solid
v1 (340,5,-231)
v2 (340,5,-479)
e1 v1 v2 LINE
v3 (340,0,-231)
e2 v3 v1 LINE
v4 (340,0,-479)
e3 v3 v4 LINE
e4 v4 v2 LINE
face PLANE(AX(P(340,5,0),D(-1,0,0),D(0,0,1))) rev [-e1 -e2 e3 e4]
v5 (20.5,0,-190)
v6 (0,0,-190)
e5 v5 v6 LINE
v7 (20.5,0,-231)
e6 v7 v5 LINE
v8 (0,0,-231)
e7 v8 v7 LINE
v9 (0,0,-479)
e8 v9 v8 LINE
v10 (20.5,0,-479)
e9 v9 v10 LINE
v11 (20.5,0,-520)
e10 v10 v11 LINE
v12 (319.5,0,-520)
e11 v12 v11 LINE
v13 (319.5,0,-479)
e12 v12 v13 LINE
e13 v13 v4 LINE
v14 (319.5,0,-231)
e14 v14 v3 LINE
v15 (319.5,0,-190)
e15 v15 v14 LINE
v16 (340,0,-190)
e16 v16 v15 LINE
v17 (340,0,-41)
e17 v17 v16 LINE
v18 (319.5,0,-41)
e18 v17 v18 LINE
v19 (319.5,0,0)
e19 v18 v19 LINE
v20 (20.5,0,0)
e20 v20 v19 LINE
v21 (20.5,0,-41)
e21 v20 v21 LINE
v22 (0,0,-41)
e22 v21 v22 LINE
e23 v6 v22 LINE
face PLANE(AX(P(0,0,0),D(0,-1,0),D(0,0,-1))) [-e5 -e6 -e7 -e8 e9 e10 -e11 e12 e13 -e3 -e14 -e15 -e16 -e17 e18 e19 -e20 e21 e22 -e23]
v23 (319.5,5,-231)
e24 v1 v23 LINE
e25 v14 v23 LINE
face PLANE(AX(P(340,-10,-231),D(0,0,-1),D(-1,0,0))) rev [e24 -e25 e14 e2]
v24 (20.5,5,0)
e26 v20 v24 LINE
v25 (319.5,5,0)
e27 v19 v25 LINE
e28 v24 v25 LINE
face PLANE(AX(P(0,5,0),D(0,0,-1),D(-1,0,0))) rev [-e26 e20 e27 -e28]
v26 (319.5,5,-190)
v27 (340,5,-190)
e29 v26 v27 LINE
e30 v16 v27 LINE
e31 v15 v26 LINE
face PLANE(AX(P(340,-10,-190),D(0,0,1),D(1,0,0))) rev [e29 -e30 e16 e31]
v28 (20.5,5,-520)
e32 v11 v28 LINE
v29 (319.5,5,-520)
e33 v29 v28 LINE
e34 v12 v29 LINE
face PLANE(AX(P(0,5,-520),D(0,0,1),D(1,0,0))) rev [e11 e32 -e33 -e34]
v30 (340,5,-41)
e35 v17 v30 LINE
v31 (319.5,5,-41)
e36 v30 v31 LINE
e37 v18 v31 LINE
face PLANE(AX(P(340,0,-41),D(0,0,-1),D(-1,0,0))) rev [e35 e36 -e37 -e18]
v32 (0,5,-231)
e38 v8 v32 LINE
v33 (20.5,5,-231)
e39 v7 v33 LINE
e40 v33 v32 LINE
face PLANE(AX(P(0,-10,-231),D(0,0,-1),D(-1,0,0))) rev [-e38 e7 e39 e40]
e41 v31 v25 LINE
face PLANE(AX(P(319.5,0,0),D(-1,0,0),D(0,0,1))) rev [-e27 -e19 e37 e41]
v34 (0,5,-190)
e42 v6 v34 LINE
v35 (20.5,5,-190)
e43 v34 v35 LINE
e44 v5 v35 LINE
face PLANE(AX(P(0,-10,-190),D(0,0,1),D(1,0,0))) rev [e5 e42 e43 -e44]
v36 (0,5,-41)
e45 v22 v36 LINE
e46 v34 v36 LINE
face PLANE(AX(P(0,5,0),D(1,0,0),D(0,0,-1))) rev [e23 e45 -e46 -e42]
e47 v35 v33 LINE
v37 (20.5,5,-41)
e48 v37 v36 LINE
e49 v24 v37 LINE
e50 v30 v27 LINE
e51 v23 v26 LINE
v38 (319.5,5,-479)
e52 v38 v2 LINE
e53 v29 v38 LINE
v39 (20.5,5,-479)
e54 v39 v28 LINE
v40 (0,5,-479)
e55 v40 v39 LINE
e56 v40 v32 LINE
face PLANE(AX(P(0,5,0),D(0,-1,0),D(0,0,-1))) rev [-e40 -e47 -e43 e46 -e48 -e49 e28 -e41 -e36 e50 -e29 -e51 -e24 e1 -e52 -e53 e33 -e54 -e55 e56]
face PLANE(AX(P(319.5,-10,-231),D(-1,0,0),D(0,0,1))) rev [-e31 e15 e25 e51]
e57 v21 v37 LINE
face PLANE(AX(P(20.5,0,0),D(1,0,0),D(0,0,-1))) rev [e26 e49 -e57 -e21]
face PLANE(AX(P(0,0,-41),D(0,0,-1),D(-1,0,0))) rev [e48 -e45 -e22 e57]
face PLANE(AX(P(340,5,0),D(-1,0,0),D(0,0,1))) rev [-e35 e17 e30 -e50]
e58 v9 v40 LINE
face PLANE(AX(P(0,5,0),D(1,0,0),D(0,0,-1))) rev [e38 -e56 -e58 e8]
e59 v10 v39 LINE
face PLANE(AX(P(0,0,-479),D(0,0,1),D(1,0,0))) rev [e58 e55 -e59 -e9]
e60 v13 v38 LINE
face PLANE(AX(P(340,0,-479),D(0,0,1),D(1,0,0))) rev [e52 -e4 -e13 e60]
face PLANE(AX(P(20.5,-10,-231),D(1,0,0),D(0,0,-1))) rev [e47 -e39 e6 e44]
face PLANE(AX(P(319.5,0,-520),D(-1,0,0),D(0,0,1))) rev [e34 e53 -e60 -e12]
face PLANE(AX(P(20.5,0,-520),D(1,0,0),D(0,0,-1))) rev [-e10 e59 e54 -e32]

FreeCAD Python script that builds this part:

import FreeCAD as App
import Part
import Sketcher

V = App.Vector

doc = App.newDocument("Part")
body = doc.addObject("PartDesign::Body", "Body")

# Sketch on XZ plane
sketch1 = doc.addObject("Sketcher::SketchObject", "Sketch")
body.addObject(sketch1)
sketch1.AttachmentSupport = (doc.XZ_Plane, [""])
sketch1.MapMode = "FlatFace"
sketch1.addGeometry([
    Part.LineSegment(V(0, -520, 0), V(0, 0, 0)),
    Part.LineSegment(V(0, 0, 0), V(340, 0, 0)),
    Part.LineSegment(V(340, 0, 0), V(340, -520, 0)),
    Part.LineSegment(V(340, -520, 0), V(0, -520, 0)),
], False)
sketch1.addConstraint([
    Sketcher.Constraint("Coincident", 0, 2, 1, 1),
    Sketcher.Constraint("Coincident", 1, 2, 2, 1),
    Sketcher.Constraint("Coincident", 2, 2, 3, 1),
    Sketcher.Constraint("Coincident", 3, 2, 0, 1),
    Sketcher.Constraint("Vertical", 0),
    Sketcher.Constraint("Horizontal", 1),
    Sketcher.Constraint("Vertical", 2),
    Sketcher.Constraint("Horizontal", 3),
    Sketcher.Constraint("Coincident", 0, 2, -1, 1),
    Sketcher.Constraint("DistanceX", 1, 1, 1, 2, 340.0),
    Sketcher.Constraint("DistanceY", 0, 1, 0, 2, 520.0),
])
pad1 = doc.addObject("PartDesign::Pad", "Pad")
body.addObject(pad1)
pad1.Profile = sketch1
pad1.Length = 5
pad1.Reversed = True

# Sketch on XZ plane
sketch2 = doc.addObject("Sketcher::SketchObject", "Sketch001")
body.addObject(sketch2)
sketch2.AttachmentSupport = (doc.XZ_Plane, [""])
sketch2.MapMode = "FlatFace"
sketch2.AttachmentOffset = App.Placement(V(0, 0, -5), App.Rotation())
sketch2.addGeometry([
    Part.LineSegment(V(319.5, -520, 0), V(319.5, -479, 0)),  # 0
    Part.LineSegment(V(319.5, -479, 0), V(340, -479, 0)),  # 1
    Part.LineSegment(V(340, -479, 0), V(340, -520, 0)),  # 2
    Part.LineSegment(V(340, -520, 0), V(319.5, -520, 0)),  # 3
    Part.LineSegment(V(319.5, -41, 0), V(319.5, 0, 0)),  # 4
    Part.LineSegment(V(319.5, 0, 0), V(340, 0, 0)),  # 5
    Part.LineSegment(V(340, 0, 0), V(340, -41, 0)),  # 6
    Part.LineSegment(V(340, -41, 0), V(319.5, -41, 0)),  # 7
    Part.LineSegment(V(0, -41, 0), V(0, 0, 0)),  # 8
    Part.LineSegment(V(0, 0, 0), V(20.5, 0, 0)),  # 9
    Part.LineSegment(V(20.5, 0, 0), V(20.5, -41, 0)),  # 10
    Part.LineSegment(V(20.5, -41, 0), V(0, -41, 0)),  # 11
    Part.LineSegment(V(0, -520, 0), V(0, -479, 0)),  # 12
    Part.LineSegment(V(0, -479, 0), V(20.5, -479, 0)),  # 13
    Part.LineSegment(V(20.5, -479, 0), V(20.5, -520, 0)),  # 14
    Part.LineSegment(V(20.5, -520, 0), V(0, -520, 0)),  # 15
], False)
sketch2.addConstraint([
    Sketcher.Constraint("Coincident", 0, 2, 1, 1),
    Sketcher.Constraint("Coincident", 1, 2, 2, 1),
    Sketcher.Constraint("Coincident", 2, 2, 3, 1),
    Sketcher.Constraint("Coincident", 3, 2, 0, 1),
    Sketcher.Constraint("Coincident", 4, 2, 5, 1),
    Sketcher.Constraint("Coincident", 5, 2, 6, 1),
    Sketcher.Constraint("Coincident", 6, 2, 7, 1),
    Sketcher.Constraint("Coincident", 7, 2, 4, 1),
    Sketcher.Constraint("Coincident", 8, 2, 9, 1),
    Sketcher.Constraint("Coincident", 9, 2, 10, 1),
    Sketcher.Constraint("Coincident", 10, 2, 11, 1),
    Sketcher.Constraint("Coincident", 11, 2, 8, 1),
    Sketcher.Constraint("Coincident", 12, 2, 13, 1),
    Sketcher.Constraint("Coincident", 13, 2, 14, 1),
    Sketcher.Constraint("Coincident", 14, 2, 15, 1),
    Sketcher.Constraint("Coincident", 15, 2, 12, 1),
    Sketcher.Constraint("Vertical", 0),
    Sketcher.Constraint("Horizontal", 1),
    Sketcher.Constraint("Vertical", 2),
    Sketcher.Constraint("Horizontal", 3),
    Sketcher.Constraint("Vertical", 4),
    Sketcher.Constraint("Horizontal", 5),
    Sketcher.Constraint("Vertical", 6),
    Sketcher.Constraint("Horizontal", 7),
    Sketcher.Constraint("Vertical", 8),
    Sketcher.Constraint("Horizontal", 9),
    Sketcher.Constraint("Vertical", 10),
    Sketcher.Constraint("Horizontal", 11),
    Sketcher.Constraint("Vertical", 12),
    Sketcher.Constraint("Horizontal", 13),
    Sketcher.Constraint("Vertical", 14),
    Sketcher.Constraint("Horizontal", 15),
    Sketcher.Constraint("Coincident", 8, 2, -1, 1),
    Sketcher.Constraint("PointOnObject", 4, 2, -1),
    Sketcher.Constraint("PointOnObject", 12, 2, -2),
    Sketcher.Constraint("Horizontal", 7, 2, 10, 2),
    Sketcher.Constraint("Horizontal", 1, 2, 12, 2),
    Sketcher.Constraint("Horizontal", 3, 2, 14, 2),
    Sketcher.Constraint("Vertical", 3, 2, 4, 2),
    Sketcher.Constraint("Vertical", 2, 2, 5, 2),
    Sketcher.Constraint("Vertical", 10, 2, 13, 2),
    Sketcher.Constraint("Equal", 7, 9),
    Sketcher.Constraint("Equal", 2, 4),
    Sketcher.Constraint("DistanceY", 0, 1, 0, 2, 41.0),
    Sketcher.Constraint("DistanceX", 1, 1, 1, 2, 20.5),
    Sketcher.Constraint("DistanceY", 0, 2, -1, 1, 479.0),
    Sketcher.Constraint("DistanceX", -1, 1, 1, 2, 340.0),
])
pocket1 = doc.addObject("PartDesign::Pocket", "Pocket")
body.addObject(pocket1)
pocket1.Profile = sketch2
pocket1.Type = "ThroughAll"
pocket1.Reversed = True

# Sketch on XZ plane
sketch3 = doc.addObject("Sketcher::SketchObject", "Sketch002")
body.addObject(sketch3)
sketch3.AttachmentSupport = (doc.XZ_Plane, [""])
sketch3.MapMode = "FlatFace"
sketch3.AttachmentOffset = App.Placement(V(0, 0, -5), App.Rotation())
sketch3.addGeometry([
    Part.LineSegment(V(319.5, -231, 0), V(319.5, -190, 0)),  # 0
    Part.LineSegment(V(319.5, -190, 0), V(340, -190, 0)),  # 1
    Part.LineSegment(V(340, -190, 0), V(340, -231, 0)),  # 2
    Part.LineSegment(V(340, -231, 0), V(319.5, -231, 0)),  # 3
    Part.LineSegment(V(0, -231, 0), V(0, -190, 0)),  # 4
    Part.LineSegment(V(0, -190, 0), V(20.5, -190, 0)),  # 5
    Part.LineSegment(V(20.5, -190, 0), V(20.5, -231, 0)),  # 6
    Part.LineSegment(V(20.5, -231, 0), V(0, -231, 0)),  # 7
], False)
sketch3.addConstraint([
    Sketcher.Constraint("Coincident", 0, 2, 1, 1),
    Sketcher.Constraint("Coincident", 1, 2, 2, 1),
    Sketcher.Constraint("Coincident", 2, 2, 3, 1),
    Sketcher.Constraint("Coincident", 3, 2, 0, 1),
    Sketcher.Constraint("Coincident", 4, 2, 5, 1),
    Sketcher.Constraint("Coincident", 5, 2, 6, 1),
    Sketcher.Constraint("Coincident", 6, 2, 7, 1),
    Sketcher.Constraint("Coincident", 7, 2, 4, 1),
    Sketcher.Constraint("Vertical", 0),
    Sketcher.Constraint("Horizontal", 1),
    Sketcher.Constraint("Vertical", 2),
    Sketcher.Constraint("Horizontal", 3),
    Sketcher.Constraint("Vertical", 4),
    Sketcher.Constraint("Horizontal", 5),
    Sketcher.Constraint("Vertical", 6),
    Sketcher.Constraint("Horizontal", 7),
    Sketcher.Constraint("PointOnObject", 4, 2, -2),
    Sketcher.Constraint("Horizontal", 1, 2, 4, 2),
    Sketcher.Constraint("Horizontal", 3, 2, 6, 2),
    Sketcher.Constraint("Equal", 3, 5),
    Sketcher.Constraint("DistanceY", 0, 1, 0, 2, 41.0),
    Sketcher.Constraint("DistanceX", 1, 1, 1, 2, 20.5),
    Sketcher.Constraint("DistanceY", 0, 2, -1, 1, 190.0),
    Sketcher.Constraint("DistanceX", -1, 1, 1, 2, 340.0),
])
pocket2 = doc.addObject("PartDesign::Pocket", "Pocket001")
body.addObject(pocket2)
pocket2.Profile = sketch3
pocket2.Length = 15
pocket2.Reversed = True

doc.recompute()
